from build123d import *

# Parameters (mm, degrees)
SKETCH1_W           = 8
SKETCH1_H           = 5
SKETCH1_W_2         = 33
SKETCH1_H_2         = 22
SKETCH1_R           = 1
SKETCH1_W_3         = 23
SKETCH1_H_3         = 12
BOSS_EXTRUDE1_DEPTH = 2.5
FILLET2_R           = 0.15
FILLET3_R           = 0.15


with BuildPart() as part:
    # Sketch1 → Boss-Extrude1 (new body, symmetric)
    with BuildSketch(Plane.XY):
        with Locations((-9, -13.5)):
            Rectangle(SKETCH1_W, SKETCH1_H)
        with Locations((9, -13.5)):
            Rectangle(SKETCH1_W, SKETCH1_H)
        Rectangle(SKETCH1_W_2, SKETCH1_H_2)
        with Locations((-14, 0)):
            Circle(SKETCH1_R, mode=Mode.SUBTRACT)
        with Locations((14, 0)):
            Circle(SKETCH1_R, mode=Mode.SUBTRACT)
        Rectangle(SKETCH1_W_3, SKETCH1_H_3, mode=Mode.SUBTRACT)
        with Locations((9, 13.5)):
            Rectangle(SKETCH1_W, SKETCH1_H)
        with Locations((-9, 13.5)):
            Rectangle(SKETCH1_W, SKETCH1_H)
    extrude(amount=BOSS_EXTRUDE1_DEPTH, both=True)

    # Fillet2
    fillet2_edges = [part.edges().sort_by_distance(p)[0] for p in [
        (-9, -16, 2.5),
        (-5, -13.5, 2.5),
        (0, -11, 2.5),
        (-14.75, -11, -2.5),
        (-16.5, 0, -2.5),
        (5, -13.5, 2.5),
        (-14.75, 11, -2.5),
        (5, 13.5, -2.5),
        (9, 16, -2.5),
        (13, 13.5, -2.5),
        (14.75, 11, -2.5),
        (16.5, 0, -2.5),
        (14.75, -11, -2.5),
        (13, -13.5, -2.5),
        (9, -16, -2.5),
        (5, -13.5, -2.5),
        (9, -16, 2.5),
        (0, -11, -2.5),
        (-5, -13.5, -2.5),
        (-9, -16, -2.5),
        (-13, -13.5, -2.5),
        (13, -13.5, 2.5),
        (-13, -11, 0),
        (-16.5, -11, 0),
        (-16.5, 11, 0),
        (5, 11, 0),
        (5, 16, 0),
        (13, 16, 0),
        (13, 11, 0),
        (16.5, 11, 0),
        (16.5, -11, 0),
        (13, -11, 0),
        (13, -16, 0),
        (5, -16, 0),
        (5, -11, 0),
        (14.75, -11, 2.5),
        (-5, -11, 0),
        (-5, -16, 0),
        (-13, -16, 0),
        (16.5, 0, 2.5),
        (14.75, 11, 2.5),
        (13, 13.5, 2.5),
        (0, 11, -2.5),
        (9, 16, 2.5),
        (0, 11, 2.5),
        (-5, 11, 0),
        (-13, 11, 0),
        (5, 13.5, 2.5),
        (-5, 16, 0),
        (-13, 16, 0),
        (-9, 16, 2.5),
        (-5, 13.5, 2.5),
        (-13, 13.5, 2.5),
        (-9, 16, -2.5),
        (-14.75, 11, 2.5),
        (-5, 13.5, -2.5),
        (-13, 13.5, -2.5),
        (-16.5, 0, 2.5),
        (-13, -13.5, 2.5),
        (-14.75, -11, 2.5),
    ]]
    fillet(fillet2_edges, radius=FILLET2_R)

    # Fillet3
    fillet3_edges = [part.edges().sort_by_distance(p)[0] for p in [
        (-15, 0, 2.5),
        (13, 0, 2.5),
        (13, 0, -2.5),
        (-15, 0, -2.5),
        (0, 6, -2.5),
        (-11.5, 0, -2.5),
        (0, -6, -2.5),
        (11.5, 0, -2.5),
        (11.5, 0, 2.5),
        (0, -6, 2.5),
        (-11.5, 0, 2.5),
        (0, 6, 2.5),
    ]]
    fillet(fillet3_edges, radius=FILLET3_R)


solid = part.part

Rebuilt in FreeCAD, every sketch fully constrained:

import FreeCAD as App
import Part
import Sketcher

V = App.Vector


def edges_at(feature, points):
    """Names of the edges that pass closest to the given points."""
    edges = feature.Shape.Edges
    near = lambda p: min(range(len(edges)), key=lambda i: edges[i].distToShape(Part.Vertex(*p))[0])
    return sorted({f"Edge{near(p) + 1}" for p in points})

doc = App.newDocument("Part")
body = doc.addObject("PartDesign::Body", "Body")

sketch1 = body.newObject("Sketcher::SketchObject", "Sketch")
sketch1.AttachmentSupport = (doc.getObject("XY_Plane"), [""])
sketch1.MapMode = "FlatFace"
sketch1.addGeometry(Part.LineSegment(V(-13, -11, 0), V(-13, -16, 0)), False)
sketch1.addGeometry(Part.LineSegment(V(-13, -16, 0), V(-5, -16, 0)), False)
sketch1.addGeometry(Part.LineSegment(V(-5, -16, 0), V(-5, -11, 0)), False)
sketch1.addGeometry(Part.LineSegment(V(-5, -11, 0), V(5, -11, 0)), False)
sketch1.addGeometry(Part.LineSegment(V(5, -11, 0), V(5, -16, 0)), False)
sketch1.addGeometry(Part.LineSegment(V(5, -16, 0), V(13, -16, 0)), False)
sketch1.addGeometry(Part.LineSegment(V(13, -16, 0), V(13, -11, 0)), False)
sketch1.addGeometry(Part.LineSegment(V(13, -11, 0), V(16.5, -11, 0)), False)
sketch1.addGeometry(Part.LineSegment(V(16.5, -11, 0), V(16.5, 11, 0)), False)
sketch1.addGeometry(Part.LineSegment(V(16.5, 11, 0), V(13, 11, 0)), False)
sketch1.addGeometry(Part.LineSegment(V(13, 11, 0), V(13, 16, 0)), False)
sketch1.addGeometry(Part.LineSegment(V(13, 16, 0), V(5, 16, 0)), False)
sketch1.addGeometry(Part.LineSegment(V(5, 16, 0), V(5, 11, 0)), False)
sketch1.addGeometry(Part.LineSegment(V(5, 11, 0), V(-5, 11, 0)), False)
sketch1.addGeometry(Part.LineSegment(V(-5, 11, 0), V(-5, 16, 0)), False)
sketch1.addGeometry(Part.LineSegment(V(-5, 16, 0), V(-13, 16, 0)), False)
sketch1.addGeometry(Part.LineSegment(V(-13, 16, 0), V(-13, 11, 0)), False)
sketch1.addGeometry(Part.LineSegment(V(-13, 11, 0), V(-16.5, 11, 0)), False)
sketch1.addGeometry(Part.LineSegment(V(-16.5, 11, 0), V(-16.5, -11, 0)), False)
sketch1.addGeometry(Part.LineSegment(V(-16.5, -11, 0), V(-13, -11, 0)), False)
sketch1.addGeometry(Part.Circle(V(-14, 0, 0), V(0, 0, 1), 1), False)
sketch1.addGeometry(Part.LineSegment(V(11.5, -6, 0), V(-11.5, -6, 0)), False)
sketch1.addGeometry(Part.LineSegment(V(-11.5, -6, 0), V(-11.5, 6, 0)), False)
sketch1.addGeometry(Part.LineSegment(V(-11.5, 6, 0), V(11.5, 6, 0)), False)
sketch1.addGeometry(Part.LineSegment(V(11.5, 6, 0), V(11.5, -6, 0)), False)
sketch1.addGeometry(Part.Circle(V(14, 0, 0), V(0, 0, 1), 1), False)
sketch1.addConstraint(Sketcher.Constraint("Coincident", 0, 2, 1, 1))
sketch1.addConstraint(Sketcher.Constraint("Coincident", 1, 2, 2, 1))
sketch1.addConstraint(Sketcher.Constraint("Coincident", 2, 2, 3, 1))
sketch1.addConstraint(Sketcher.Constraint("Coincident", 3, 2, 4, 1))
sketch1.addConstraint(Sketcher.Constraint("Coincident", 4, 2, 5, 1))
sketch1.addConstraint(Sketcher.Constraint("Coincident", 5, 2, 6, 1))
sketch1.addConstraint(Sketcher.Constraint("Coincident", 6, 2, 7, 1))
sketch1.addConstraint(Sketcher.Constraint("Coincident", 7, 2, 8, 1))
sketch1.addConstraint(Sketcher.Constraint("Coincident", 8, 2, 9, 1))
sketch1.addConstraint(Sketcher.Constraint("Coincident", 9, 2, 10, 1))
sketch1.addConstraint(Sketcher.Constraint("Coincident", 10, 2, 11, 1))
sketch1.addConstraint(Sketcher.Constraint("Coincident", 11, 2, 12, 1))
sketch1.addConstraint(Sketcher.Constraint("Coincident", 12, 2, 13, 1))
sketch1.addConstraint(Sketcher.Constraint("Coincident", 13, 2, 14, 1))
sketch1.addConstraint(Sketcher.Constraint("Coincident", 14, 2, 15, 1))
sketch1.addConstraint(Sketcher.Constraint("Coincident", 15, 2, 16, 1))
sketch1.addConstraint(Sketcher.Constraint("Coincident", 16, 2, 17, 1))
sketch1.addConstraint(Sketcher.Constraint("Coincident", 17, 2, 18, 1))
sketch1.addConstraint(Sketcher.Constraint("Coincident", 18, 2, 19, 1))
sketch1.addConstraint(Sketcher.Constraint("Coincident", 19, 2, 0, 1))
sketch1.addConstraint(Sketcher.Constraint("Coincident", 21, 2, 22, 1))
sketch1.addConstraint(Sketcher.Constraint("Coincident", 22, 2, 23, 1))
sketch1.addConstraint(Sketcher.Constraint("Coincident", 23, 2, 24, 1))
sketch1.addConstraint(Sketcher.Constraint("Coincident", 24, 2, 21, 1))
sketch1.addConstraint(Sketcher.Constraint("Vertical", 0))
sketch1.addConstraint(Sketcher.Constraint("Horizontal", 1))
sketch1.addConstraint(Sketcher.Constraint("Vertical", 2))
sketch1.addConstraint(Sketcher.Constraint("Horizontal", 3))
sketch1.addConstraint(Sketcher.Constraint("Vertical", 4))
sketch1.addConstraint(Sketcher.Constraint("Horizontal", 5))
sketch1.addConstraint(Sketcher.Constraint("Vertical", 6))
sketch1.addConstraint(Sketcher.Constraint("Horizontal", 7))
sketch1.addConstraint(Sketcher.Constraint("Vertical", 8))
sketch1.addConstraint(Sketcher.Constraint("Horizontal", 9))
sketch1.addConstraint(Sketcher.Constraint("Vertical", 10))
sketch1.addConstraint(Sketcher.Constraint("Horizontal", 11))
sketch1.addConstraint(Sketcher.Constraint("Vertical", 12))
sketch1.addConstraint(Sketcher.Constraint("Horizontal", 13))
sketch1.addConstraint(Sketcher.Constraint("Vertical", 14))
sketch1.addConstraint(Sketcher.Constraint("Horizontal", 15))
sketch1.addConstraint(Sketcher.Constraint("Vertical", 16))
sketch1.addConstraint(Sketcher.Constraint("Horizontal", 17))
sketch1.addConstraint(Sketcher.Constraint("Vertical", 18))
sketch1.addConstraint(Sketcher.Constraint("Horizontal", 19))
sketch1.addConstraint(Sketcher.Constraint("Horizontal", 21))
sketch1.addConstraint(Sketcher.Constraint("Vertical", 22))
sketch1.addConstraint(Sketcher.Constraint("Horizontal", 23))
sketch1.addConstraint(Sketcher.Constraint("Vertical", 24))
sketch1.addConstraint(Sketcher.Constraint("Equal", 20, 25))
sketch1.addConstraint(Sketcher.Constraint("Symmetric", 20, 3, 25, 3, -1, 1))
sketch1.addConstraint(Sketcher.Constraint("Symmetric", 0, 2, 10, 2, -1, 1))
sketch1.addConstraint(Sketcher.Constraint("Symmetric", 2, 2, 12, 2, -1, 1))
sketch1.addConstraint(Sketcher.Constraint("Symmetric", 4, 2, 14, 2, -1, 1))
sketch1.addConstraint(Sketcher.Constraint("Symmetric", 6, 2, 16, 2, -1, 1))
sketch1.addConstraint(Sketcher.Constraint("Symmetric", 8, 2, 18, 2, -1, 1))
sketch1.addConstraint(Sketcher.Constraint("Symmetric", 21, 2, 23, 2, -1, 1))
sketch1.addConstraint(Sketcher.Constraint("Symmetric", 1, 2, 4, 2, -2))
sketch1.addConstraint(Sketcher.Constraint("Symmetric", 9, 2, 16, 2, -2))
sketch1.addConstraint(Sketcher.Constraint("PointOnObject", 20, 3, -1))
sketch1.addConstraint(Sketcher.Constraint("Horizontal", 3, 2, 6, 2))
sketch1.addConstraint(Sketcher.Constraint("Diameter", 20, 2.0))
sketch1.addConstraint(Sketcher.Constraint("DistanceX", 1, 1, 1, 2, 8.0))
sketch1.addConstraint(Sketcher.Constraint("DistanceX", 3, 1, 3, 2, 10.0))
sketch1.addConstraint(Sketcher.Constraint("DistanceX", 21, 2, 21, 1, 23.0))
sketch1.addConstraint(Sketcher.Constraint("DistanceY", 0, 2, 0, 1, 5.0))
sketch1.addConstraint(Sketcher.Constraint("DistanceY", 8, 1, 8, 2, 22.0))
sketch1.addConstraint(Sketcher.Constraint("DistanceY", 22, 1, 22, 2, 12.0))
sketch1.addConstraint(Sketcher.Constraint("DistanceX", 7, 1, 7, 2, 3.5))
sketch1.addConstraint(Sketcher.Constraint("DistanceX", 20, 3, -1, 1, 14.0))
pad1 = body.newObject("PartDesign::Pad", "Pad")
pad1.Profile = sketch1
pad1.Length = 5
pad1.Midplane = True
doc.recompute()

fillet = body.newObject("PartDesign::Fillet", "Fillet")
fillet.Base = (pad1, edges_at(pad1, [
    (-9, -16, 2.5),
    (-5, -13.5, 2.5),
    (0, -11, 2.5),
    (-14.75, -11, -2.5),
    (-16.5, 0, -2.5),
    (5, -13.5, 2.5),
    (-14.75, 11, -2.5),
    (5, 13.5, -2.5),
    (9, 16, -2.5),
    (13, 13.5, -2.5),
    (14.75, 11, -2.5),
    (16.5, 0, -2.5),
    (14.75, -11, -2.5),
    (13, -13.5, -2.5),
    (9, -16, -2.5),
    (5, -13.5, -2.5),
    (9, -16, 2.5),
    (0, -11, -2.5),
    (-5, -13.5, -2.5),
    (-9, -16, -2.5),
    (-13, -13.5, -2.5),
    (13, -13.5, 2.5),
    (-13, -11, 0),
    (-16.5, -11, 0),
    (-16.5, 11, 0),
    (5, 11, 0),
    (5, 16, 0),
    (13, 16, 0),
    (13, 11, 0),
    (16.5, 11, 0),
    (16.5, -11, 0),
    (13, -11, 0),
    (13, -16, 0),
    (5, -16, 0),
    (5, -11, 0),
    (14.75, -11, 2.5),
    (-5, -11, 0),
    (-5, -16, 0),
    (-13, -16, 0),
    (16.5, 0, 2.5),
    (14.75, 11, 2.5),
    (13, 13.5, 2.5),
    (0, 11, -2.5),
    (9, 16, 2.5),
    (0, 11, 2.5),
    (-5, 11, 0),
    (-13, 11, 0),
    (5, 13.5, 2.5),
    (-5, 16, 0),
    (-13, 16, 0),
    (-9, 16, 2.5),
    (-5, 13.5, 2.5),
    (-13, 13.5, 2.5),
    (-9, 16, -2.5),
    (-14.75, 11, 2.5),
    (-5, 13.5, -2.5),
    (-13, 13.5, -2.5),
    (-16.5, 0, 2.5),
    (-13, -13.5, 2.5),
    (-14.75, -11, 2.5),
]))
fillet.Radius = 0.15
doc.recompute()

fillet2 = body.newObject("PartDesign::Fillet", "Fillet001")
fillet2.Base = (fillet, edges_at(fillet, [
    (-15, 0, 2.5),
    (13, 0, 2.5),
    (13, 0, -2.5),
    (-15, 0, -2.5),
    (0, 6, -2.5),
    (-11.5, 0, -2.5),
    (0, -6, -2.5),
    (11.5, 0, -2.5),
    (11.5, 0, 2.5),
    (0, -6, 2.5),
    (-11.5, 0, 2.5),
    (0, 6, 2.5),
]))
fillet2.Radius = 0.15

doc.recompute()
